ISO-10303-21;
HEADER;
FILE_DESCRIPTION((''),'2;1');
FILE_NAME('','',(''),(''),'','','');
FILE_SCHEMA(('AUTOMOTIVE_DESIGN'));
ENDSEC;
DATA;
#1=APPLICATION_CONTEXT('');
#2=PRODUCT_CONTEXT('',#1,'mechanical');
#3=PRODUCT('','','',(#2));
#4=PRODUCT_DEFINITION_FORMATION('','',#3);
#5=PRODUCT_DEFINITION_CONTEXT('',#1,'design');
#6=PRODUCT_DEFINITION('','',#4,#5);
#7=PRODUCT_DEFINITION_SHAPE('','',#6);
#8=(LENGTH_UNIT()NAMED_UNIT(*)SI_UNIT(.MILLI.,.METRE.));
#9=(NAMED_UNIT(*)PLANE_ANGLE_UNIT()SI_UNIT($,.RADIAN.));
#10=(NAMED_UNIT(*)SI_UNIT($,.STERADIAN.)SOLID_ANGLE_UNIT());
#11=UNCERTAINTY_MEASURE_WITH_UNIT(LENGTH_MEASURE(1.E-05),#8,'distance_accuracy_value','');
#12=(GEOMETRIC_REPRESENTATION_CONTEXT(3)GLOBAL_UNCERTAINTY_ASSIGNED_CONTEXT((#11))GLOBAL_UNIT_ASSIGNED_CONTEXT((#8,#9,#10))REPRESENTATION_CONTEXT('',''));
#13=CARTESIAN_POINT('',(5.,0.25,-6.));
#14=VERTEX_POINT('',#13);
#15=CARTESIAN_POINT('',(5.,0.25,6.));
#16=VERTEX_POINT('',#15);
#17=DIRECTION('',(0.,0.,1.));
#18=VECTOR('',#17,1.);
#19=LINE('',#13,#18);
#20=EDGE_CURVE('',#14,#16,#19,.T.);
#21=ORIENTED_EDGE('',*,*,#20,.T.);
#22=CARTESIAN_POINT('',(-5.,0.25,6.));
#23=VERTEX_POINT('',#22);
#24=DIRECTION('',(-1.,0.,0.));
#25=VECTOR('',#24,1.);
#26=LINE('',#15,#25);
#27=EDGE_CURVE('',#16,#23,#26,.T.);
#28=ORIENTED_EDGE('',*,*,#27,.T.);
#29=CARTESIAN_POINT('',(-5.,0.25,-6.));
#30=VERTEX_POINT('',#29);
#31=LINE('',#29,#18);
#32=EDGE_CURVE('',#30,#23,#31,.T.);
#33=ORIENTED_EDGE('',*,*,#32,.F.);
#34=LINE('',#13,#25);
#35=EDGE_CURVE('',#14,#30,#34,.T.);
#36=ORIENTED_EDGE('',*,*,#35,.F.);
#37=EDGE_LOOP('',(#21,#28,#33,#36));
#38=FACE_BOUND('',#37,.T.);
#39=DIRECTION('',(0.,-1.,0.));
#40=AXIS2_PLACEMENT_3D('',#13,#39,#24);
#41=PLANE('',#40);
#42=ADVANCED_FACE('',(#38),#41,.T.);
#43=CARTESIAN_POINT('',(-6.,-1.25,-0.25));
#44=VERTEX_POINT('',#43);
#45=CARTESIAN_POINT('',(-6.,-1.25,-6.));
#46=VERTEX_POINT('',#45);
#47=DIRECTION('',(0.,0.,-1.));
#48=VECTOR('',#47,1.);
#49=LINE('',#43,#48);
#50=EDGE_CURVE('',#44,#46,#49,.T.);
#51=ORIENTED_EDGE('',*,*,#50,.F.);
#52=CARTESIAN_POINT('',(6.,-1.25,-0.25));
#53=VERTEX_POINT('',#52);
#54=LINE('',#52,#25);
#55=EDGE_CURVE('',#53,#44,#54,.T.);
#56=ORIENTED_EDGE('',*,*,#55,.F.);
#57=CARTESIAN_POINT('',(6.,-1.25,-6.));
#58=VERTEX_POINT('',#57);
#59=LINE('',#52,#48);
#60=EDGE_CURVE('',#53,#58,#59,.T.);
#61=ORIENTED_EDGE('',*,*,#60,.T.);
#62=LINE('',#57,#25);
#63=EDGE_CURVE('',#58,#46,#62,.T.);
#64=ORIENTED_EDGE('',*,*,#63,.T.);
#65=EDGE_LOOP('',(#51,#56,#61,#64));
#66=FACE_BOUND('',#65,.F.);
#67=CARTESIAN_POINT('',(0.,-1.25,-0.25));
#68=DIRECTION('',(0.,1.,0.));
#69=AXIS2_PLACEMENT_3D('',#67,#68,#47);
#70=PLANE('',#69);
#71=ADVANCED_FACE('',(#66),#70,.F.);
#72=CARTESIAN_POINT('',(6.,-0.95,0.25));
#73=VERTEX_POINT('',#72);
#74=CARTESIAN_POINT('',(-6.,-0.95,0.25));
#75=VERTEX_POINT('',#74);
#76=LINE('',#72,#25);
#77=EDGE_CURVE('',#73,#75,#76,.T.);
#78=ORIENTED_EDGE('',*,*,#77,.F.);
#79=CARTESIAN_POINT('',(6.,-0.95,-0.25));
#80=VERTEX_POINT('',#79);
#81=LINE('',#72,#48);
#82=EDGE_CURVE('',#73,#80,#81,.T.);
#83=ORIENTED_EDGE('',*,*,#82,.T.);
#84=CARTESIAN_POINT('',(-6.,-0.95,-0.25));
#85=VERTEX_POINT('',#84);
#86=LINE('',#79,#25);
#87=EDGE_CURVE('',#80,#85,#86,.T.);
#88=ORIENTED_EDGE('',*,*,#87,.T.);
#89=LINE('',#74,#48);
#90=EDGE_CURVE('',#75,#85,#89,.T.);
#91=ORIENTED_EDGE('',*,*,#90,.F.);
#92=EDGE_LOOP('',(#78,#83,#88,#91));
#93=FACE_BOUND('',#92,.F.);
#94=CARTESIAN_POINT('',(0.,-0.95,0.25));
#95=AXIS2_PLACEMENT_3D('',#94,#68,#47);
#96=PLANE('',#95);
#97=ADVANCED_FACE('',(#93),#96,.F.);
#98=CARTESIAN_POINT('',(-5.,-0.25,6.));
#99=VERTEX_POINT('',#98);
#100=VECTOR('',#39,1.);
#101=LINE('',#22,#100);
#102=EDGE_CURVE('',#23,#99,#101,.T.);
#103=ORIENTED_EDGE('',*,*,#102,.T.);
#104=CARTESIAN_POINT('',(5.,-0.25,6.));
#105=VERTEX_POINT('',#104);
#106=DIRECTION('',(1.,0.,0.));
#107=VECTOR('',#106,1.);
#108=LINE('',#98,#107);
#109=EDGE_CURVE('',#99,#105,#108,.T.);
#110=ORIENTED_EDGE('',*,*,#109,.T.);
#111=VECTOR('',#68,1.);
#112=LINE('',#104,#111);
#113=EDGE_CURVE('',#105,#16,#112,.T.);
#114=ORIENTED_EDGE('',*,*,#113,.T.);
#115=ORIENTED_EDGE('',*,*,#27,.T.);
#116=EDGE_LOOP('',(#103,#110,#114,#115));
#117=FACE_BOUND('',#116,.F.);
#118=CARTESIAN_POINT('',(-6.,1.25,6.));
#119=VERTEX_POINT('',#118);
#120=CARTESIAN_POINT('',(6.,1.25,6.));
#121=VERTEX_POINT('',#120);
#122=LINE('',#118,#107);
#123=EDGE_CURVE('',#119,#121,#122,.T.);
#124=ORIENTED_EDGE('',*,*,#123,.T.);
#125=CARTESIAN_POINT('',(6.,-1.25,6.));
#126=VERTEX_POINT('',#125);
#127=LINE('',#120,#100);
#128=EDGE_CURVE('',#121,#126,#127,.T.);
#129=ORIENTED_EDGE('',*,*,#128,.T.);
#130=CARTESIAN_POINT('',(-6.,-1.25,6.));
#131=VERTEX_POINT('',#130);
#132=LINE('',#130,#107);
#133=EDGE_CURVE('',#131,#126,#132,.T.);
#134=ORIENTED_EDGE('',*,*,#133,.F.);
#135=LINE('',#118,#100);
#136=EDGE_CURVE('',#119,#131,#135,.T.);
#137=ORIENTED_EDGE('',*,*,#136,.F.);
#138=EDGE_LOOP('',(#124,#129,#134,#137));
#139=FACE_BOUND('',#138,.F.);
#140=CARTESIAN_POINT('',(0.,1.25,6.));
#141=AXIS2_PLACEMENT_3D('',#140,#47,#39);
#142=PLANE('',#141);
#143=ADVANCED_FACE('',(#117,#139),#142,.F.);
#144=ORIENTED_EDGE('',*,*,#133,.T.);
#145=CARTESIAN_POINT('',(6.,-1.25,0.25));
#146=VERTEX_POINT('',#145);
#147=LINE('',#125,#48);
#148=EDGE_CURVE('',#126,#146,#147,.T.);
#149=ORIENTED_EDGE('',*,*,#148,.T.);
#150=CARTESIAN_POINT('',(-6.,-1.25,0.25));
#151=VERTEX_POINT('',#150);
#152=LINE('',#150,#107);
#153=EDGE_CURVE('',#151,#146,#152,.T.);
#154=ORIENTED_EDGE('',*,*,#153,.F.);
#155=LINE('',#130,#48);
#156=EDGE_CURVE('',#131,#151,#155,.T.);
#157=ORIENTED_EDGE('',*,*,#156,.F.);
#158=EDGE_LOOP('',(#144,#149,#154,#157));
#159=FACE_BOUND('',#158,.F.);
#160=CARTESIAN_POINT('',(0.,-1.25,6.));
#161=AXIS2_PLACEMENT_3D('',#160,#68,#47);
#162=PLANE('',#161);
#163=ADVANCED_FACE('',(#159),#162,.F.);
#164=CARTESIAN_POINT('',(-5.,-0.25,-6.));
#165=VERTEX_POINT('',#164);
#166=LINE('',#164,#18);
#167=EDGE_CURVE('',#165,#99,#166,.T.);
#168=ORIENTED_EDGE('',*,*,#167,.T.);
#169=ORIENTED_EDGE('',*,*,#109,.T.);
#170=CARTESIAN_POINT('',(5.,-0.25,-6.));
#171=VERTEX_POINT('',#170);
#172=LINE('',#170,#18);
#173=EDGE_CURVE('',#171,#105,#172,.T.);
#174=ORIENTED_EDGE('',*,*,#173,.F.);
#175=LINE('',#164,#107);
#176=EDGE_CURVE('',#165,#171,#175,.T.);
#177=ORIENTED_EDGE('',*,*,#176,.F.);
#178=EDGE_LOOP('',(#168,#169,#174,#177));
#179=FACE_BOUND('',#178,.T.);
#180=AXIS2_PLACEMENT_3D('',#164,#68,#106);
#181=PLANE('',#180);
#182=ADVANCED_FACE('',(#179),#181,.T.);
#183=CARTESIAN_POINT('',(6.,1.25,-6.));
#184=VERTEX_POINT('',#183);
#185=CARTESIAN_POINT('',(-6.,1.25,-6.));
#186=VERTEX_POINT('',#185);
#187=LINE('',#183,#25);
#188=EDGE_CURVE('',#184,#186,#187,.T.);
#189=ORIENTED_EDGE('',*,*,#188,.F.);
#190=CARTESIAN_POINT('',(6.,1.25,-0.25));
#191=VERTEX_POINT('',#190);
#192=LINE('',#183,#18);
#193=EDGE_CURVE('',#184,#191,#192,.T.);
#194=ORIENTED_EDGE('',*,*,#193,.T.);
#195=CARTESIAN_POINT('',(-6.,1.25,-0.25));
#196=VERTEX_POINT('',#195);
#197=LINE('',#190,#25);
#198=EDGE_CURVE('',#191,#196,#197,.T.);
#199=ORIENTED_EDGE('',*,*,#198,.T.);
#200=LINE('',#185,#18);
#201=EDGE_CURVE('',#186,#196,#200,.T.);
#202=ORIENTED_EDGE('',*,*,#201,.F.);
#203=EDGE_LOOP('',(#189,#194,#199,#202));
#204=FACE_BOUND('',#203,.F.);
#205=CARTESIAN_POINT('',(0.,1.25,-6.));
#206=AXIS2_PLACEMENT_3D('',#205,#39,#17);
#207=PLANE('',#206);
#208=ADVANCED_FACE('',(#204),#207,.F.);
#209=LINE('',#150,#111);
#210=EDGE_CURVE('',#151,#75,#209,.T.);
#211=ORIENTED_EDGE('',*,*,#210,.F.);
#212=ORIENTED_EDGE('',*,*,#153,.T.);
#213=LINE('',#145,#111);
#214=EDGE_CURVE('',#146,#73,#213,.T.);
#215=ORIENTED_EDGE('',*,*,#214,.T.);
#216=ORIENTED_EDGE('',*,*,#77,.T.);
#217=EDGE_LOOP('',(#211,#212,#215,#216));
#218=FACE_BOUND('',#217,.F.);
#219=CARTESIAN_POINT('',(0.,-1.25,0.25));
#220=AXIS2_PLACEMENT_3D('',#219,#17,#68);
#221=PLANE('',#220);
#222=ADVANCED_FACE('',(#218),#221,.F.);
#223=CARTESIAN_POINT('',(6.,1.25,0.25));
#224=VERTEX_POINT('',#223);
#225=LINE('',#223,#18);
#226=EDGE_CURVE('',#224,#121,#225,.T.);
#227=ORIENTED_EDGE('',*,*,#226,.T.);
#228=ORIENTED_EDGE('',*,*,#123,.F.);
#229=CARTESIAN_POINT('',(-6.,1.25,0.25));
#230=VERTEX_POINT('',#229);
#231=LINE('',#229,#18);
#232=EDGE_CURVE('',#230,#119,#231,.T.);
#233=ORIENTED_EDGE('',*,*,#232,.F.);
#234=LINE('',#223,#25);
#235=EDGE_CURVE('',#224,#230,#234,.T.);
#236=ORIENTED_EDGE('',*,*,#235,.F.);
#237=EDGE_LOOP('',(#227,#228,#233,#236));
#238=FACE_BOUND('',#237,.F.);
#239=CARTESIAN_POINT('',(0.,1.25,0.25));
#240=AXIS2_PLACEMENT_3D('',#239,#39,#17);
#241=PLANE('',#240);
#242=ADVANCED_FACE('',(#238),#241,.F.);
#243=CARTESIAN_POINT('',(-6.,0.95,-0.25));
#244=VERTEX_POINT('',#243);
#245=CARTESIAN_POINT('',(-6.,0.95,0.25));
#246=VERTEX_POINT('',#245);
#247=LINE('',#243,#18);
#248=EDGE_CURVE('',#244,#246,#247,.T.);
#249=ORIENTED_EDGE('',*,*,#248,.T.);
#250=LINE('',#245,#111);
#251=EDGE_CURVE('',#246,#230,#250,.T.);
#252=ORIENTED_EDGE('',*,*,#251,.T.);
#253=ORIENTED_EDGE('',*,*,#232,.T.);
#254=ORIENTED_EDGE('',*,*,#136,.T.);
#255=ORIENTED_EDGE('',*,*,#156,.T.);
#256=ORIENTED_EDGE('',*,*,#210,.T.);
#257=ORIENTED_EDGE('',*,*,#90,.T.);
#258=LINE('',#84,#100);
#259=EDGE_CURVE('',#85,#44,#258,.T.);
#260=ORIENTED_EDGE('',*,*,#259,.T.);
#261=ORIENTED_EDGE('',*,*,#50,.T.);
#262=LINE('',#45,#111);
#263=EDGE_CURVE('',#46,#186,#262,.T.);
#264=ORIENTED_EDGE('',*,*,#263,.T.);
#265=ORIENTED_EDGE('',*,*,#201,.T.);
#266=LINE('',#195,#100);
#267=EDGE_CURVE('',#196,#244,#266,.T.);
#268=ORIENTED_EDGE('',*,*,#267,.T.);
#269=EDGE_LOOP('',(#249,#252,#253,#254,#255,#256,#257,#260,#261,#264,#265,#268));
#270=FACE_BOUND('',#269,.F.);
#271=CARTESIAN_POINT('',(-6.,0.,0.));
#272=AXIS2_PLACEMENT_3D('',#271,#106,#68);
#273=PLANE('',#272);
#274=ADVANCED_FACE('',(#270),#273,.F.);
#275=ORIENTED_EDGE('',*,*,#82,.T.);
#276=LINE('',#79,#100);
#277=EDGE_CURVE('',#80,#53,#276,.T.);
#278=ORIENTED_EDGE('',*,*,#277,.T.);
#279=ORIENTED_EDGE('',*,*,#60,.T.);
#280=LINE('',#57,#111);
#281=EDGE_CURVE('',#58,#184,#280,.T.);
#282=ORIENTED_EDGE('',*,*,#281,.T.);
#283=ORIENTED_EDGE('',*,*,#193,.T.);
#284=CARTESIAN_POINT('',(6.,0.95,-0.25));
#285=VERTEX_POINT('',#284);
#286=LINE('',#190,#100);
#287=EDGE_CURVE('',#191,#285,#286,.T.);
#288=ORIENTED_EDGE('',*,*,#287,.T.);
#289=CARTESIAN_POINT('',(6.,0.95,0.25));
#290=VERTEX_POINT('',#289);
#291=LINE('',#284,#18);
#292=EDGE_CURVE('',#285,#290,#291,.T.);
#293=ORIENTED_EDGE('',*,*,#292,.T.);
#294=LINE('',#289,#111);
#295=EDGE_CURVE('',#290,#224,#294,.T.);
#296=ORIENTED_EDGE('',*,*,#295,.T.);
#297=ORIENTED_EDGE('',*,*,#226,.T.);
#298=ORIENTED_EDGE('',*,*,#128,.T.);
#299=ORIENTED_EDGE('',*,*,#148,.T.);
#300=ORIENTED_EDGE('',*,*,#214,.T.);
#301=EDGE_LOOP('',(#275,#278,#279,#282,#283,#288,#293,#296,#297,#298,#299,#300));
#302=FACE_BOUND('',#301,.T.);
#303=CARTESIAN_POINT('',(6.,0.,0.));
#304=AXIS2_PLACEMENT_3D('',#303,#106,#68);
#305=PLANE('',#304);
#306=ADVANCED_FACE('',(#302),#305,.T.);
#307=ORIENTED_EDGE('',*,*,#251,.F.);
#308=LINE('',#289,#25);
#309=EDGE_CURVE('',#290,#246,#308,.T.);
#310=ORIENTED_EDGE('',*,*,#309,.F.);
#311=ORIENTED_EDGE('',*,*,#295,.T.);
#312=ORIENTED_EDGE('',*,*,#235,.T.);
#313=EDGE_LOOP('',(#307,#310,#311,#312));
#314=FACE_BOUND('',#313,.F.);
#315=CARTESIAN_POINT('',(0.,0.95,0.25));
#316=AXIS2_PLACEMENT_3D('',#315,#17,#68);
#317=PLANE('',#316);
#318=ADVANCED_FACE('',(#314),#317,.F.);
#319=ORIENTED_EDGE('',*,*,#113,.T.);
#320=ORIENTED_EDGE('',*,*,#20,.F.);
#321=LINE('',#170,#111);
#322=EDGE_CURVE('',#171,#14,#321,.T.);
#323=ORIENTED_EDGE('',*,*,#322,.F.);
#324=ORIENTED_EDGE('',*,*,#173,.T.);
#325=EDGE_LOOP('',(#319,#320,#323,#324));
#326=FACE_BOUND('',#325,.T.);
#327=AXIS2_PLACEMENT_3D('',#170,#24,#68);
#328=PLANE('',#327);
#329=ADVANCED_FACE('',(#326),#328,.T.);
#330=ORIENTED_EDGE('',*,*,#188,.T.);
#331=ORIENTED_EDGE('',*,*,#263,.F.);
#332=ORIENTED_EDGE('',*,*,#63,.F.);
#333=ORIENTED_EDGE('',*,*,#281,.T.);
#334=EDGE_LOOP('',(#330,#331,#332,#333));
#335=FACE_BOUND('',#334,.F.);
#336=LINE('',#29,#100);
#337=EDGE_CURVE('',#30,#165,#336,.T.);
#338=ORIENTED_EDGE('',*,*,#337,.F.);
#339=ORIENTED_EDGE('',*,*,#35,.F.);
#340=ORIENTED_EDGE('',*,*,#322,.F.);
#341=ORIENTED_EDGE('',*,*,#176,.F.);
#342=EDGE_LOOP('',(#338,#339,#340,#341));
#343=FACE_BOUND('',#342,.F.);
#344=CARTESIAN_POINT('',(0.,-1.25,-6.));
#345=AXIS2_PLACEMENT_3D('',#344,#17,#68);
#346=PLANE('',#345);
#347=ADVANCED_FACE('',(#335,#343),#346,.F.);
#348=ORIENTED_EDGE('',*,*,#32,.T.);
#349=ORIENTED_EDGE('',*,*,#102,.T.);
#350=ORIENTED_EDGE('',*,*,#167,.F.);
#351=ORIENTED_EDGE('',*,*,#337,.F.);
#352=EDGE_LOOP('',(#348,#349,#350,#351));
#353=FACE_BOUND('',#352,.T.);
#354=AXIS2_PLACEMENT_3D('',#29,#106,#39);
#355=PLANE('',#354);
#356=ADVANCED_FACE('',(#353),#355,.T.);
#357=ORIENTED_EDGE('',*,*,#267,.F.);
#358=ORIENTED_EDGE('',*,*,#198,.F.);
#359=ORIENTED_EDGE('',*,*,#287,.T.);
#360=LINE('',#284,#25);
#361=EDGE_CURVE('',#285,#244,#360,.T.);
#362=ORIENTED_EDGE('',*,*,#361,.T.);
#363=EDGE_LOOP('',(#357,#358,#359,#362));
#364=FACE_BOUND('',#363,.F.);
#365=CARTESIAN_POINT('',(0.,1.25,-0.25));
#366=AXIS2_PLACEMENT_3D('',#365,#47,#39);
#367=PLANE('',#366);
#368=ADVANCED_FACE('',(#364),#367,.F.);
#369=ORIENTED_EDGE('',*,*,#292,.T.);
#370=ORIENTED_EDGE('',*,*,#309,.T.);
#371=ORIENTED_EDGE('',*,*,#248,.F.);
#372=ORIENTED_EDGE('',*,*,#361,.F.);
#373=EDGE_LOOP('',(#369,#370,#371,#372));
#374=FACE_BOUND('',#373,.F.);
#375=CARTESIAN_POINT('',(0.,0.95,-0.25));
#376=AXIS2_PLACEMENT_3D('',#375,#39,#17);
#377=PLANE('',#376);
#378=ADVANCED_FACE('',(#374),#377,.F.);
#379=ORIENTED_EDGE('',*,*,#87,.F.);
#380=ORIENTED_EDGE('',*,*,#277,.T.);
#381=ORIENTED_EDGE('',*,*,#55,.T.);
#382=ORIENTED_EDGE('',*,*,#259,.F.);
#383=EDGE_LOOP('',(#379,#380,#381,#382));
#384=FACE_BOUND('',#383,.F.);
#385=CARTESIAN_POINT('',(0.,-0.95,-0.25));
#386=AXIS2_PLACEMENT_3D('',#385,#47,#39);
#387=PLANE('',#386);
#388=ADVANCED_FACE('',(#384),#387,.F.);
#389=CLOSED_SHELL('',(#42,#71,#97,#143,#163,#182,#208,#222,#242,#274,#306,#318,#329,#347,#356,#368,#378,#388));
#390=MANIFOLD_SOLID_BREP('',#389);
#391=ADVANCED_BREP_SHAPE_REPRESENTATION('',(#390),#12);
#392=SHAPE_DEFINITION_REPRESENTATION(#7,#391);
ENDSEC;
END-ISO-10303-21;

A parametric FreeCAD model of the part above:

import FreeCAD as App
import Part
import Sketcher

V = App.Vector
Q = App.Units.Quantity


def add_polygon(sketch, points):
    """Adds a closed chain of lines whose ends are joined by coincident constraints."""
    first, n = sketch.GeometryCount, len(points)
    for a, b in zip(points, points[1:] + points[:1]):
        sketch.addGeometry(Part.LineSegment(App.Vector(*a, 0), App.Vector(*b, 0)), False)
    for i in range(n):
        sketch.addConstraint(Sketcher.Constraint("Coincident", first + i, 2, first + (i + 1) % n, 1))

doc = App.newDocument("Part")
body = doc.addObject("PartDesign::Body", "Body")

sketch1 = body.newObject("Sketcher::SketchObject", "Sketch")
sketch1.AttachmentSupport = (doc.getObject("YZ_Plane"), [""])
sketch1.MapMode = "FlatFace"
add_polygon(sketch1, [(1.25, 0.25), (1.25, 6), (-1.25, 6), (-1.25, 0.25), (-0.95, 0.25), (-0.95, -0.25), (-1.25, -0.25), (-1.25, -6), (1.25, -6), (1.25, -0.25), (0.95, -0.25), (0.95, 0.25)])
sketch1.addConstraint(Sketcher.Constraint("Vertical", 0))
sketch1.addConstraint(Sketcher.Constraint("Horizontal", 1))
sketch1.addConstraint(Sketcher.Constraint("Vertical", 2))
sketch1.addConstraint(Sketcher.Constraint("Horizontal", 3))
sketch1.addConstraint(Sketcher.Constraint("Vertical", 4))
sketch1.addConstraint(Sketcher.Constraint("Horizontal", 5))
sketch1.addConstraint(Sketcher.Constraint("Vertical", 6))
sketch1.addConstraint(Sketcher.Constraint("Horizontal", 7))
sketch1.addConstraint(Sketcher.Constraint("Vertical", 8))
sketch1.addConstraint(Sketcher.Constraint("Horizontal", 9))
sketch1.addConstraint(Sketcher.Constraint("Vertical", 10))
sketch1.addConstraint(Sketcher.Constraint("Horizontal", 11))
sketch1.addConstraint(Sketcher.Constraint("Symmetric", 0, 2, 6, 2, -1, 1))
sketch1.addConstraint(Sketcher.Constraint("Symmetric", 2, 2, 8, 2, -1, 1))
sketch1.addConstraint(Sketcher.Constraint("Symmetric", 4, 2, 10, 2, -1, 1))
sketch1.addConstraint(Sketcher.Constraint("Symmetric", 5, 2, 8, 2, -2))
sketch1.addConstraint(Sketcher.Constraint("DistanceX", 3, 1, 3, 2, Q("0.3 mm")))
sketch1.addConstraint(Sketcher.Constraint("DistanceY", 4, 2, 4, 1, Q("0.5 mm")))
sketch1.addConstraint(Sketcher.Constraint("DistanceY", -1, 1, 0, 2, Q("6 mm")))
sketch1.addConstraint(Sketcher.Constraint("DistanceX", 1, 2, 1, 1, Q("2.5 mm")))
pad1 = body.newObject("PartDesign::Pad", "Pad")
pad1.Profile = sketch1
pad1.Length = 12
pad1.Midplane = True

sketch2 = body.newObject("Sketcher::SketchObject", "Sketch001")
sketch2.AttachmentSupport = (doc.getObject("XY_Plane"), [""])
sketch2.MapMode = "FlatFace"
sketch2.AttachmentOffset = App.Placement(V(0, 0, -6), App.Rotation())
add_polygon(sketch2, [(-5, 0.25), (5, 0.25), (5, -0.25), (-5, -0.25)])
sketch2.addConstraint(Sketcher.Constraint("Horizontal", 0))
sketch2.addConstraint(Sketcher.Constraint("Vertical", 1))
sketch2.addConstraint(Sketcher.Constraint("Horizontal", 2))
sketch2.addConstraint(Sketcher.Constraint("Vertical", 3))
sketch2.addConstraint(Sketcher.Constraint("Symmetric", 0, 2, 2, 2, -1, 1))
sketch2.addConstraint(Sketcher.Constraint("DistanceX", 0, 1, 0, 2, Q("10 mm")))
sketch2.addConstraint(Sketcher.Constraint("DistanceY", 1, 2, 1, 1, Q("0.5 mm")))
pocket1 = body.newObject("PartDesign::Pocket", "Pocket")
pocket1.Profile = sketch2
pocket1.Length = 12
pocket1.Reversed = True

doc.recompute()
